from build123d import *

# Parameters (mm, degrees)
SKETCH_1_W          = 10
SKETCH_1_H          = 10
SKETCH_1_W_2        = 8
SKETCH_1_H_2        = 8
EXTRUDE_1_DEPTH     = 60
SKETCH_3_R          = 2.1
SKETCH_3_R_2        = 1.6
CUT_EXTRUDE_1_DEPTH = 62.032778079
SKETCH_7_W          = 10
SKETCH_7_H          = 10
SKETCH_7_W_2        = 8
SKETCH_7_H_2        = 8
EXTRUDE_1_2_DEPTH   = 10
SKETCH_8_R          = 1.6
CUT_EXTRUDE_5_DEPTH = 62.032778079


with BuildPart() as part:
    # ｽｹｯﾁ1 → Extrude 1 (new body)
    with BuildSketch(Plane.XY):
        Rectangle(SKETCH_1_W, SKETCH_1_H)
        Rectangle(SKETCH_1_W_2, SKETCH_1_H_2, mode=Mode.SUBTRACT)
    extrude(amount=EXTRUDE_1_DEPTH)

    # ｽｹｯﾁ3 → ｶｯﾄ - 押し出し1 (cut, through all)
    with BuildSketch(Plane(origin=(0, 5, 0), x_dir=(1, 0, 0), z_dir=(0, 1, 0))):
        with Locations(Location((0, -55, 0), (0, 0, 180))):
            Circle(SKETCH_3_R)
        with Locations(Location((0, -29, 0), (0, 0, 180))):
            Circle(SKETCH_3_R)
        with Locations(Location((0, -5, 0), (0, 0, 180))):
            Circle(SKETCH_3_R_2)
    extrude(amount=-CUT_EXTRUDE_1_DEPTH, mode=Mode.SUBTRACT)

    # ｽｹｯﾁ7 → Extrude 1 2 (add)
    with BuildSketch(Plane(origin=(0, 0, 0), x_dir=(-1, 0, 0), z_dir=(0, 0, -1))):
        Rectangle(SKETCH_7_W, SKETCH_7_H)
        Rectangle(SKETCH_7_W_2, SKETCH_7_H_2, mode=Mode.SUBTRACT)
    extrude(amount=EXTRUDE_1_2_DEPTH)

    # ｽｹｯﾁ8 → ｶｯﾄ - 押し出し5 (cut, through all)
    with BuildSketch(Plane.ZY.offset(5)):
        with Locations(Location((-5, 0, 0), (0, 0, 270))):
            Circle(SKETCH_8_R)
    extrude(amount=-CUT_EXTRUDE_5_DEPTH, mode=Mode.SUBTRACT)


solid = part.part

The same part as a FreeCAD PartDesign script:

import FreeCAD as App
import Part
import Sketcher
from FreeCAD import Vector


def add_polygon(sketch, points):
    """Adds a closed chain of lines whose ends are joined by coincident constraints."""
    first, n = sketch.GeometryCount, len(points)
    for a, b in zip(points, points[1:] + points[:1]):
        sketch.addGeometry(Part.LineSegment(App.Vector(*a, 0), App.Vector(*b, 0)), False)
    for i in range(n):
        sketch.addConstraint(Sketcher.Constraint("Coincident", first + i, 2, first + (i + 1) % n, 1))

doc = App.newDocument("Part")
params = doc.addObject("Spreadsheet::Sheet", "Params")
for row, (alias, value) in enumerate([
    ("sketch1_width", "10 mm"),
    ("sketch1_width2", "8 mm"),
    ("pad1_length", "60 mm"),
    ("sketch2_diameter", "4.2 mm"),
    ("sketch2_diameter2", "3.2 mm"),
    ("sketch3_width", "10 mm"),
    ("sketch3_width2", "8 mm"),
    ("pad2_length", "10 mm"),
    ("sketch4_diameter", "3.2 mm"),
], start=1):
    params.set(f"A{row}", alias)
    params.set(f"B{row}", "=" + value)
    params.setAlias(f"B{row}", alias)

body = doc.addObject("PartDesign::Body", "Body")

sketch1 = doc.addObject("Sketcher::SketchObject", "Sketch")
body.addObject(sketch1)
sketch1.AttachmentSupport = (doc.XY_Plane, [""])
sketch1.MapMode = "FlatFace"
add_polygon(sketch1, [(-5, 5), (-5, -5), (5, -5), (5, 5)])
add_polygon(sketch1, [(4, -4), (-4, -4), (-4, 4), (4, 4)])
sketch1.addConstraint([
    Sketcher.Constraint("Vertical", 0),
    Sketcher.Constraint("Horizontal", 1),
    Sketcher.Constraint("Vertical", 2),
    Sketcher.Constraint("Horizontal", 3),
    Sketcher.Constraint("Horizontal", 4),
    Sketcher.Constraint("Vertical", 5),
    Sketcher.Constraint("Horizontal", 6),
    Sketcher.Constraint("Vertical", 7),
    Sketcher.Constraint("Symmetric", 0, 2, 2, 2, -1, 1),
    Sketcher.Constraint("Symmetric", 4, 2, 6, 2, -1, 1),
    Sketcher.Constraint("Equal", 3, 0),
    Sketcher.Constraint("Equal", 6, 5),
    Sketcher.Constraint("DistanceX", 1, 1, 1, 2, 10.0),
    Sketcher.Constraint("DistanceX", 4, 2, 4, 1, 8.0),
])
sketch1.setExpression("Constraints[20]", "Params.sketch1_width")
sketch1.setExpression("Constraints[21]", "Params.sketch1_width2")
pad1 = doc.addObject("PartDesign::Pad", "Pad")
body.addObject(pad1)
pad1.Profile = sketch1
pad1.setExpression("Length", "Params.pad1_length")

sketch2 = doc.addObject("Sketcher::SketchObject", "Sketch001")
body.addObject(sketch2)
sketch2.AttachmentSupport = (doc.XZ_Plane, [""])
sketch2.MapMode = "FlatFace"
sketch2.AttachmentOffset = App.Placement(Vector(0, 0, -5), App.Rotation())
sketch2.addGeometry([
    Part.Circle(Vector(0, 55, 0), Vector(0, 0, 1), 2.1),
    Part.Circle(Vector(0, 29, 0), Vector(0, 0, 1), 2.1),
    Part.Circle(Vector(0, 5, 0), Vector(0, 0, 1), 1.6),
], False)
sketch2.addConstraint([
    Sketcher.Constraint("Equal", 0, 1),
    Sketcher.Constraint("PointOnObject", 0, 3, -2),
    Sketcher.Constraint("PointOnObject", 1, 3, -2),
    Sketcher.Constraint("PointOnObject", 2, 3, -2),
    Sketcher.Constraint("Diameter", 0, 4.2),
    Sketcher.Constraint("Diameter", 2, 3.2),
    Sketcher.Constraint("DistanceY", -1, 1, 0, 3, 55.0),
    Sketcher.Constraint("DistanceY", -1, 1, 1, 3, 29.0),
    Sketcher.Constraint("DistanceY", -1, 1, 2, 3, 5.0),
])
sketch2.setExpression("Constraints[4]", "Params.sketch2_diameter")
sketch2.setExpression("Constraints[5]", "Params.sketch2_diameter2")
pocket1 = doc.addObject("PartDesign::Pocket", "Pocket")
body.addObject(pocket1)
pocket1.Profile = sketch2
pocket1.Type = "ThroughAll"
pocket1.Reversed = True

sketch3 = doc.addObject("Sketcher::SketchObject", "Sketch002")
body.addObject(sketch3)
sketch3.AttachmentSupport = (doc.XY_Plane, [""])
sketch3.MapMode = "FlatFace"
add_polygon(sketch3, [(5, 5), (5, -5), (-5, -5), (-5, 5)])
add_polygon(sketch3, [(-4, -4), (4, -4), (4, 4), (-4, 4)])
sketch3.addConstraint([
    Sketcher.Constraint("Vertical", 0),
    Sketcher.Constraint("Horizontal", 1),
    Sketcher.Constraint("Vertical", 2),
    Sketcher.Constraint("Horizontal", 3),
    Sketcher.Constraint("Horizontal", 4),
    Sketcher.Constraint("Vertical", 5),
    Sketcher.Constraint("Horizontal", 6),
    Sketcher.Constraint("Vertical", 7),
    Sketcher.Constraint("Symmetric", 0, 2, 2, 2, -1, 1),
    Sketcher.Constraint("Symmetric", 4, 2, 6, 2, -1, 1),
    Sketcher.Constraint("Equal", 3, 0),
    Sketcher.Constraint("Equal", 6, 5),
    Sketcher.Constraint("DistanceX", 1, 2, 1, 1, 10.0),
    Sketcher.Constraint("DistanceX", 4, 1, 4, 2, 8.0),
])
sketch3.setExpression("Constraints[20]", "Params.sketch3_width")
sketch3.setExpression("Constraints[21]", "Params.sketch3_width2")
pad2 = doc.addObject("PartDesign::Pad", "Pad001")
body.addObject(pad2)
pad2.Profile = sketch3
pad2.setExpression("Length", "Params.pad2_length")
pad2.Reversed = True

sketch4 = doc.addObject("Sketcher::SketchObject", "Sketch003")
body.addObject(sketch4)
sketch4.AttachmentSupport = (doc.YZ_Plane, [""])
sketch4.MapMode = "FlatFace"
sketch4.AttachmentOffset = App.Placement(Vector(0, 0, -5), App.Rotation())
sketch4.addGeometry(Part.Circle(Vector(0, -5, 0), Vector(0, 0, 1), 1.6), False)
sketch4.addConstraint([
    Sketcher.Constraint("PointOnObject", 0, 3, -2),
    Sketcher.Constraint("Diameter", 0, 3.2),
    Sketcher.Constraint("DistanceY", 0, 3, -1, 1, 5.0),
])
sketch4.setExpression("Constraints[1]", "Params.sketch4_diameter")
pocket2 = doc.addObject("PartDesign::Pocket", "Pocket001")
body.addObject(pocket2)
pocket2.Profile = sketch4
pocket2.Type = "ThroughAll"
pocket2.Reversed = True

doc.recompute()
